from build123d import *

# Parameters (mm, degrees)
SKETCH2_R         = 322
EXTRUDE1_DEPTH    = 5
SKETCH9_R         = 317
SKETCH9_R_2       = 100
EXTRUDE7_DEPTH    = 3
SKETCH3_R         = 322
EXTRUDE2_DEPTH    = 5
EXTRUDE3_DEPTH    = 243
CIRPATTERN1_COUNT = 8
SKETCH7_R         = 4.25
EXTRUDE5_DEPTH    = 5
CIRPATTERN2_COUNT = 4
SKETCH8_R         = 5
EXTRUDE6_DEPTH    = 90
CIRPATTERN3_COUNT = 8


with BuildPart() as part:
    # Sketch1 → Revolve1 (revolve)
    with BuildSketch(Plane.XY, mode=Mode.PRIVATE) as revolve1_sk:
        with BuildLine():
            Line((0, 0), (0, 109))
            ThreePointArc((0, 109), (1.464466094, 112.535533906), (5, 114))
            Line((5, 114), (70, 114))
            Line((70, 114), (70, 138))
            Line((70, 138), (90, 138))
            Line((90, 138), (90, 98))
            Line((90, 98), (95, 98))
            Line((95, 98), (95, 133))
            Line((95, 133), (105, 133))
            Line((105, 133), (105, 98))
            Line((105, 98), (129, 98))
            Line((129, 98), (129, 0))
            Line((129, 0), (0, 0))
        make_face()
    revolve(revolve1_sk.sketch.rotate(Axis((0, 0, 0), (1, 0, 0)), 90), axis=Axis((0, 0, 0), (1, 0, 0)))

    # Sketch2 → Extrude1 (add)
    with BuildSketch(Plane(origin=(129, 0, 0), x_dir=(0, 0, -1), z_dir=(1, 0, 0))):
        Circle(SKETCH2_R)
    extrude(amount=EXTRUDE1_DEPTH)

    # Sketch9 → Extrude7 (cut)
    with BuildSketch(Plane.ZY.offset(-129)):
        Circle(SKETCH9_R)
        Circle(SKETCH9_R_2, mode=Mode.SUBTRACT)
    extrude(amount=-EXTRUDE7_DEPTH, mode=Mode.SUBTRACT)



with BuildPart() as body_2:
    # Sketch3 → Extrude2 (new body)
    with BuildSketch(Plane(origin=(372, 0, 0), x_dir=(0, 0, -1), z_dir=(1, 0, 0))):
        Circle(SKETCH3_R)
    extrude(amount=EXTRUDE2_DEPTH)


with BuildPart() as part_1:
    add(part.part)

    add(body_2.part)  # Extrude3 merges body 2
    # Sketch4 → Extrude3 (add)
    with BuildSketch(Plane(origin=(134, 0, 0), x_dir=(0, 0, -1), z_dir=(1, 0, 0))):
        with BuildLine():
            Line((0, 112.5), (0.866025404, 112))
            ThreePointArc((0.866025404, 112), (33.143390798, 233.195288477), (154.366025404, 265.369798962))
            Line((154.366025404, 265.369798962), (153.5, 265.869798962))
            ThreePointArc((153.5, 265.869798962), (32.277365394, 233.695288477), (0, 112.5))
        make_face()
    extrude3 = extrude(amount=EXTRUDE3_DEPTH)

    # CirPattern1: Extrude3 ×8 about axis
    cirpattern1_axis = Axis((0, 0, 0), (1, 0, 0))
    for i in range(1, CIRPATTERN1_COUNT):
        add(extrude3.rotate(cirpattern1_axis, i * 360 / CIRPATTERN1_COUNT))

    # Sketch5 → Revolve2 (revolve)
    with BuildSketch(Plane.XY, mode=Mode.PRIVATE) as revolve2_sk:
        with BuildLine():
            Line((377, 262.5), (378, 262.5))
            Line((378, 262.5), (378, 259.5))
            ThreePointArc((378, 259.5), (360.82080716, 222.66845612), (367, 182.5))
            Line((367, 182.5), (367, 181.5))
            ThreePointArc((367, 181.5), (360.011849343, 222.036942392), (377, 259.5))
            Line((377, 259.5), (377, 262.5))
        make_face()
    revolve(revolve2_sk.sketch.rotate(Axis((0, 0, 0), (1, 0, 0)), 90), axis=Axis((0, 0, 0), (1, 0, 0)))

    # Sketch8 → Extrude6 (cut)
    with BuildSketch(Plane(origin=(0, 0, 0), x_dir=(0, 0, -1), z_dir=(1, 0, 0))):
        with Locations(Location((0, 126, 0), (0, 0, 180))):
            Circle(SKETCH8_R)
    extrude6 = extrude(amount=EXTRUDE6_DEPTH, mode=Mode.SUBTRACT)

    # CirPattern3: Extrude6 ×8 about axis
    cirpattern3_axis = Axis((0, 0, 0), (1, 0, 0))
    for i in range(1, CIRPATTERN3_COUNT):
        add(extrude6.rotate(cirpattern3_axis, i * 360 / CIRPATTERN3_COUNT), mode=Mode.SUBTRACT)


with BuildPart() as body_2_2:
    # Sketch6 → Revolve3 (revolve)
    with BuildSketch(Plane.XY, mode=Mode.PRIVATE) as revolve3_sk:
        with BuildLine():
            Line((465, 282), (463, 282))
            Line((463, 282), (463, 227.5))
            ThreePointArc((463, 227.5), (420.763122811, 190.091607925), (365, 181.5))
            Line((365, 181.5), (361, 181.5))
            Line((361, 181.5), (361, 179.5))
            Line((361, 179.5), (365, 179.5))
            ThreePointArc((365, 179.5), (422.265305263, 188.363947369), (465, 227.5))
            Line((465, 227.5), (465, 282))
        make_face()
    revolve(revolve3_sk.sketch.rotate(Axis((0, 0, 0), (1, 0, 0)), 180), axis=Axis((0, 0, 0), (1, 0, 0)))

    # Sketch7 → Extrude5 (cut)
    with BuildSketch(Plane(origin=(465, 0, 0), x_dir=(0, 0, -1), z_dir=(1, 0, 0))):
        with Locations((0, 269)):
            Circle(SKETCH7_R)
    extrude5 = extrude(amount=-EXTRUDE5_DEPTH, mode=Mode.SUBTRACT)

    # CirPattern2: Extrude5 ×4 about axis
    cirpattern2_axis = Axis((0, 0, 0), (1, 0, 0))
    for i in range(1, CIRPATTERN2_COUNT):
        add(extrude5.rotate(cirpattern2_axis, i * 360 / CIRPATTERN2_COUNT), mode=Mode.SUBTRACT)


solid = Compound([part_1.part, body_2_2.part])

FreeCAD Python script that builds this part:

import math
import FreeCAD as App
import Part
import Sketcher
Q = App.Units.Quantity

doc = App.newDocument("Part")
body = doc.addObject("PartDesign::Body", "Body")

# Sketch on XY plane
sketch1 = body.newObject("Sketcher::SketchObject", "Sketch")
sketch1.AttachmentSupport = (doc.getObject("XY_Plane"), [""])
sketch1.MapMode = "FlatFace"
sketch1.addGeometry([
    Part.LineSegment(App.Vector(0, 109, 0), App.Vector(0, 0, 0)),  # 0
    Part.LineSegment(App.Vector(0, 0, 0), App.Vector(129, 0, 0)),  # 1
    Part.LineSegment(App.Vector(129, 0, 0), App.Vector(129, 98, 0)),  # 2
    Part.LineSegment(App.Vector(129, 98, 0), App.Vector(105, 98, 0)),  # 3
    Part.LineSegment(App.Vector(105, 98, 0), App.Vector(105, 133, 0)),  # 4
    Part.LineSegment(App.Vector(105, 133, 0), App.Vector(95, 133, 0)),  # 5
    Part.LineSegment(App.Vector(95, 133, 0), App.Vector(95, 98, 0)),  # 6
    Part.LineSegment(App.Vector(95, 98, 0), App.Vector(90, 98, 0)),  # 7
    Part.LineSegment(App.Vector(90, 98, 0), App.Vector(90, 138, 0)),  # 8
    Part.LineSegment(App.Vector(90, 138, 0), App.Vector(70, 138, 0)),  # 9
    Part.LineSegment(App.Vector(70, 138, 0), App.Vector(70, 114, 0)),  # 10
    Part.LineSegment(App.Vector(70, 114, 0), App.Vector(5, 114, 0)),  # 11
    Part.ArcOfCircle(Part.Circle(App.Vector(5, 109, 0), App.Vector(0, 0, 1), 5), math.radians(90), math.radians(180)),  # 12
], False)
sketch1.addConstraint([
    Sketcher.Constraint("Coincident", 0, 2, 1, 1),
    Sketcher.Constraint("Coincident", 1, 2, 2, 1),
    Sketcher.Constraint("Coincident", 2, 2, 3, 1),
    Sketcher.Constraint("Coincident", 3, 2, 4, 1),
    Sketcher.Constraint("Coincident", 4, 2, 5, 1),
    Sketcher.Constraint("Coincident", 5, 2, 6, 1),
    Sketcher.Constraint("Coincident", 6, 2, 7, 1),
    Sketcher.Constraint("Coincident", 7, 2, 8, 1),
    Sketcher.Constraint("Coincident", 8, 2, 9, 1),
    Sketcher.Constraint("Coincident", 9, 2, 10, 1),
    Sketcher.Constraint("Coincident", 10, 2, 11, 1),
    Sketcher.Constraint("Tangent", 11, 2, 12, 1),
    Sketcher.Constraint("Tangent", 12, 2, 0, 1),
    Sketcher.Constraint("Vertical", 0),
    Sketcher.Constraint("Horizontal", 1),
    Sketcher.Constraint("Vertical", 2),
    Sketcher.Constraint("Horizontal", 3),
    Sketcher.Constraint("Vertical", 4),
    Sketcher.Constraint("Horizontal", 5),
    Sketcher.Constraint("Vertical", 6),
    Sketcher.Constraint("Horizontal", 7),
    Sketcher.Constraint("Vertical", 8),
    Sketcher.Constraint("Horizontal", 9),
    Sketcher.Constraint("Vertical", 10),
    Sketcher.Constraint("Horizontal", 11),
    Sketcher.Constraint("Coincident", 0, 2, -1, 1),
    Sketcher.Constraint("Horizontal", 3, 2, 6, 2),
    Sketcher.Constraint("Equal", 3, 10),
    Sketcher.Constraint("Radius", 12, 5.0),
    Sketcher.Constraint("DistanceX", 1, 1, 1, 2, 129.0),
    Sketcher.Constraint("DistanceX", 3, 2, 3, 1, 24.0),
    Sketcher.Constraint("DistanceX", 5, 2, 5, 1, 10.0),
    Sketcher.Constraint("DistanceX", 7, 2, 7, 1, 5.0),
    Sketcher.Constraint("DistanceX", 9, 2, 9, 1, 20.0),
    Sketcher.Constraint("DistanceY", 0, 2, 0, 1, 109.0),
    Sketcher.Constraint("DistanceY", 2, 1, 2, 2, 98.0),
    Sketcher.Constraint("DistanceY", 4, 1, 4, 2, 35.0),
])
revolution = body.newObject("PartDesign::Revolution", "Revolution")
revolution.Profile = sketch1
revolution.ReferenceAxis = (sketch1, ["H_Axis"])
revolution.Angle = 360

# Sketch on YZ plane
sketch2 = body.newObject("Sketcher::SketchObject", "Sketch001")
sketch2.AttachmentSupport = (doc.getObject("YZ_Plane"), [""])
sketch2.MapMode = "FlatFace"
sketch2.AttachmentOffset = App.Placement(App.Vector(0, 0, 129), App.Rotation())
sketch2.addGeometry(Part.Circle(App.Vector(0, 0, 0), App.Vector(0, 0, 1), 322), False)
sketch2.addConstraint([
    Sketcher.Constraint("Coincident", 0, 3, -1, 1),
    Sketcher.Constraint("Diameter", 0, 644.0),
])
pad1 = body.newObject("PartDesign::Pad", "Pad")
pad1.Profile = sketch2
pad1.Length = 5

# Sketch on YZ plane
sketch3 = body.newObject("Sketcher::SketchObject", "Sketch002")
sketch3.AttachmentSupport = (doc.getObject("YZ_Plane"), [""])
sketch3.MapMode = "FlatFace"
sketch3.AttachmentOffset = App.Placement(App.Vector(0, 0, 129), App.Rotation())
sketch3.addGeometry([
    Part.Circle(App.Vector(0, 0, 0), App.Vector(0, 0, 1), 317),
    Part.Circle(App.Vector(0, 0, 0), App.Vector(0, 0, 1), 100),
], False)
sketch3.addConstraint([
    Sketcher.Constraint("Coincident", 0, 3, -1, 1),
    Sketcher.Constraint("Coincident", 1, 3, -1, 1),
    Sketcher.Constraint("Diameter", 0, 634.0),
    Sketcher.Constraint("Diameter", 1, 200.0),
])
pocket1 = body.newObject("PartDesign::Pocket", "Pocket")
pocket1.Profile = sketch3
pocket1.Length = 3
pocket1.Reversed = True
body2 = doc.addObject("PartDesign::Body", "Body001")

# Sketch on YZ plane
sketch4 = body2.newObject("Sketcher::SketchObject", "Sketch003")
sketch4.AttachmentSupport = (doc.getObject("YZ_Plane001"), [""])
sketch4.MapMode = "FlatFace"
sketch4.AttachmentOffset = App.Placement(App.Vector(0, 0, 372), App.Rotation())
sketch4.addGeometry(Part.Circle(App.Vector(0, 0, 0), App.Vector(0, 0, 1), 322), False)
sketch4.addConstraint([
    Sketcher.Constraint("Coincident", 0, 3, -1, 1),
    Sketcher.Constraint("Diameter", 0, 644.0),
])
pad2 = body2.newObject("PartDesign::Pad", "Pad001")
pad2.Profile = sketch4
pad2.Length = 5
body.AllowCompound = True
doc.recompute()

boolean = body.newObject("PartDesign::Boolean", "Boolean")
boolean.Type = "Fuse"
boolean.addObjects([body2])

# Sketch on YZ plane
sketch5 = body.newObject("Sketcher::SketchObject", "Sketch004")
sketch5.AttachmentSupport = (doc.getObject("YZ_Plane"), [""])
sketch5.MapMode = "FlatFace"
sketch5.AttachmentOffset = App.Placement(App.Vector(0, 0, 134), App.Rotation())
sketch5.addGeometry([
    Part.LineSegment(App.Vector(112.5, 0, 0), App.Vector(112, -0.9, 0)),
    Part.ArcOfCircle(Part.Circle(App.Vector(144.8, -121.5, 0), App.Vector(0, 0, 1), 125), math.radians(-15), math.radians(105)),
    Part.LineSegment(App.Vector(265.4, -154.4, 0), App.Vector(265.9, -153.5, 0)),
    Part.ArcOfCircle(Part.Circle(App.Vector(145.3, -120.6, 0), App.Vector(0, 0, 1), 125), math.radians(-15), math.radians(105)),
], False)
sketch5.addConstraint([
    Sketcher.Constraint("Coincident", 0, 2, 1, 2),
    Sketcher.Constraint("Coincident", 1, 1, 2, 1),
    Sketcher.Constraint("Coincident", 2, 2, 3, 1),
    Sketcher.Constraint("Coincident", 3, 2, 0, 1),
    Sketcher.Constraint("Equal", 1, 3),
    Sketcher.Constraint("PointOnObject", 3, 2, -1),
    Sketcher.Constraint("Parallel", 0, 2),
    Sketcher.Constraint("Equal", 0, 2),
    Sketcher.Constraint("Radius", 1, 125.0),
    Sketcher.Constraint("Angle", 0, Q("-120 deg")),
    Sketcher.Constraint("Distance", 0, 1.0),
    Sketcher.Constraint("DistanceX", -1, 1, 0, 2, 112.0),
    Sketcher.Constraint("DistanceY", 2, 2, -1, 1, 153.5),
    Sketcher.Constraint("DistanceX", -1, 1, 1, 1, 265.369799),
])
pad3 = body.newObject("PartDesign::Pad", "Pad002")
pad3.Profile = sketch5
pad3.Length = 243
doc.recompute()

polarpattern = body.newObject("PartDesign::PolarPattern", "PolarPattern")
polarpattern.Originals = [pad3]
polarpattern.Axis = (doc.getObject("X_Axis"), [""])
polarpattern.Angle = 360
polarpattern.Occurrences = 8
body.Tip = polarpattern

# Sketch on XY plane
sketch6 = body.newObject("Sketcher::SketchObject", "Sketch005")
sketch6.AttachmentSupport = (doc.getObject("XY_Plane"), [""])
sketch6.MapMode = "FlatFace"
sketch6.addGeometry([
    Part.LineSegment(App.Vector(378, 262.5, 0), App.Vector(377, 262.5, 0)),  # 0
    Part.LineSegment(App.Vector(377, 262.5, 0), App.Vector(377, 259.5, 0)),  # 1
    Part.ArcOfCircle(Part.Circle(App.Vector(429.4, 213.1, 0), App.Vector(0, 0, 1), 70), math.radians(139), math.radians(207)),  # 2
    Part.LineSegment(App.Vector(367, 181.5, 0), App.Vector(367, 182.5, 0)),  # 3
    Part.ArcOfCircle(Part.Circle(App.Vector(430.1, 212.8, 0), App.Vector(0, 0, 1), 70), math.radians(138), math.radians(206)),  # 4
    Part.LineSegment(App.Vector(378, 259.5, 0), App.Vector(378, 262.5, 0)),  # 5
], False)
sketch6.addConstraint([
    Sketcher.Constraint("Coincident", 0, 2, 1, 1),
    Sketcher.Constraint("Coincident", 1, 2, 2, 1),
    Sketcher.Constraint("Coincident", 2, 2, 3, 1),
    Sketcher.Constraint("Coincident", 3, 2, 4, 2),
    Sketcher.Constraint("Coincident", 4, 1, 5, 1),
    Sketcher.Constraint("Coincident", 5, 2, 0, 1),
    Sketcher.Constraint("Horizontal", 0),
    Sketcher.Constraint("Vertical", 1),
    Sketcher.Constraint("Vertical", 3),
    Sketcher.Constraint("Vertical", 5),
    Sketcher.Constraint("Equal", 2, 4),
    Sketcher.Constraint("Horizontal", 1, 2, 4, 1),
    Sketcher.Constraint("Equal", 0, 3),
    Sketcher.Constraint("Radius", 2, 70.0),
    Sketcher.Constraint("DistanceX", 0, 2, 0, 1, 1.0),
    Sketcher.Constraint("DistanceY", 1, 2, 1, 1, 3.0),
    Sketcher.Constraint("DistanceX", -1, 1, 0, 2, 377.0),
    Sketcher.Constraint("DistanceX", -1, 1, 2, 2, 367.0),
    Sketcher.Constraint("DistanceY", 2, 2, 1, 2, 78.0),
    Sketcher.Constraint("DistanceY", -1, 1, 0, 2, 262.5),
])
revolution2 = body.newObject("PartDesign::Revolution", "Revolution001")
revolution2.Profile = sketch6
revolution2.ReferenceAxis = (sketch6, ["H_Axis"])
revolution2.Angle = 360

# Sketch on YZ plane
sketch7 = body.newObject("Sketcher::SketchObject", "Sketch006")
sketch7.AttachmentSupport = (doc.getObject("YZ_Plane"), [""])
sketch7.MapMode = "FlatFace"
sketch7.addGeometry(Part.Circle(App.Vector(126, 0, 0), App.Vector(0, 0, 1), 5), False)
sketch7.addConstraint([
    Sketcher.Constraint("PointOnObject", 0, 3, -1),
    Sketcher.Constraint("Diameter", 0, 10.0),
    Sketcher.Constraint("DistanceX", -1, 1, 0, 3, 126.0),
])
pocket2 = body.newObject("PartDesign::Pocket", "Pocket001")
pocket2.Profile = sketch7
pocket2.Length = 90
pocket2.Reversed = True
doc.recompute()

polarpattern2 = body.newObject("PartDesign::PolarPattern", "PolarPattern001")
polarpattern2.Originals = [pocket2]
polarpattern2.Axis = (doc.getObject("X_Axis"), [""])
polarpattern2.Angle = 360
polarpattern2.Occurrences = 8
body.Tip = polarpattern2
body3 = doc.addObject("PartDesign::Body", "Body002")

# Sketch on XY plane
sketch8 = body3.newObject("Sketcher::SketchObject", "Sketch007")
sketch8.AttachmentSupport = (doc.getObject("XY_Plane002"), [""])
sketch8.MapMode = "FlatFace"
sketch8.addGeometry([
    Part.LineSegment(App.Vector(465, 282, 0), App.Vector(463, 282, 0)),  # 0
    Part.LineSegment(App.Vector(463, 282, 0), App.Vector(463, 227.5, 0)),  # 1
    Part.ArcOfCircle(Part.Circle(App.Vector(378.3, 280.6, 0), App.Vector(0, 0, 1), 100), math.radians(-98), math.radians(-32)),  # 2
    Part.LineSegment(App.Vector(365, 181.5, 0), App.Vector(361, 181.5, 0)),  # 3
    Part.LineSegment(App.Vector(361, 181.5, 0), App.Vector(361, 179.5, 0)),  # 4
    Part.LineSegment(App.Vector(361, 179.5, 0), App.Vector(365, 179.5, 0)),  # 5
    Part.ArcOfCircle(Part.Circle(App.Vector(379, 278.5, 0), App.Vector(0, 0, 1), 100), math.radians(-98), math.radians(-31)),  # 6
    Part.LineSegment(App.Vector(465, 227.5, 0), App.Vector(465, 282, 0)),  # 7
], False)
sketch8.addConstraint([
    Sketcher.Constraint("Coincident", 0, 2, 1, 1),
    Sketcher.Constraint("Coincident", 1, 2, 2, 2),
    Sketcher.Constraint("Coincident", 2, 1, 3, 1),
    Sketcher.Constraint("Coincident", 3, 2, 4, 1),
    Sketcher.Constraint("Coincident", 4, 2, 5, 1),
    Sketcher.Constraint("Coincident", 5, 2, 6, 1),
    Sketcher.Constraint("Coincident", 6, 2, 7, 1),
    Sketcher.Constraint("Coincident", 7, 2, 0, 1),
    Sketcher.Constraint("Horizontal", 0),
    Sketcher.Constraint("Vertical", 1),
    Sketcher.Constraint("Horizontal", 3),
    Sketcher.Constraint("Vertical", 4),
    Sketcher.Constraint("Horizontal", 5),
    Sketcher.Constraint("Vertical", 7),
    Sketcher.Constraint("Equal", 2, 6),
    Sketcher.Constraint("Horizontal", 1, 2, 6, 2),
    Sketcher.Constraint("Vertical", 2, 1, 5, 2),
    Sketcher.Constraint("Equal", 0, 4),
    Sketcher.Constraint("Radius", 2, 100.0),
    Sketcher.Constraint("DistanceX", 0, 2, 0, 1, 2.0),
    Sketcher.Constraint("DistanceX", 3, 2, 3, 1, 4.0),
    Sketcher.Constraint("DistanceY", 1, 2, 1, 1, 54.5),
    Sketcher.Constraint("DistanceX", -1, 1, 0, 2, 463.0),
    Sketcher.Constraint("DistanceY", -1, 1, 0, 2, 282.0),
    Sketcher.Constraint("DistanceX", -1, 1, 2, 1, 365.0),
    Sketcher.Constraint("DistanceY", 2, 1, 1, 2, 46.0),
])
revolution3 = body3.newObject("PartDesign::Revolution", "Revolution002")
revolution3.Profile = sketch8
revolution3.ReferenceAxis = (sketch8, ["H_Axis"])
revolution3.Angle = 360

# Sketch on YZ plane
sketch9 = body3.newObject("Sketcher::SketchObject", "Sketch008")
sketch9.AttachmentSupport = (doc.getObject("YZ_Plane002"), [""])
sketch9.MapMode = "FlatFace"
sketch9.AttachmentOffset = App.Placement(App.Vector(0, 0, 465), App.Rotation())
sketch9.addGeometry(Part.Circle(App.Vector(269, 0, 0), App.Vector(0, 0, 1), 4.2), False)
sketch9.addConstraint([
    Sketcher.Constraint("PointOnObject", 0, 3, -1),
    Sketcher.Constraint("Diameter", 0, 8.5),
    Sketcher.Constraint("DistanceX", -1, 1, 0, 3, 269.0),
])
pocket3 = body3.newObject("PartDesign::Pocket", "Pocket002")
pocket3.Profile = sketch9
pocket3.Length = 5
doc.recompute()

polarpattern3 = body3.newObject("PartDesign::PolarPattern", "PolarPattern002")
polarpattern3.Originals = [pocket3]
polarpattern3.Axis = (doc.getObject("X_Axis002"), [""])
polarpattern3.Angle = 360
polarpattern3.Occurrences = 4
body3.Tip = polarpattern3

doc.recompute()
